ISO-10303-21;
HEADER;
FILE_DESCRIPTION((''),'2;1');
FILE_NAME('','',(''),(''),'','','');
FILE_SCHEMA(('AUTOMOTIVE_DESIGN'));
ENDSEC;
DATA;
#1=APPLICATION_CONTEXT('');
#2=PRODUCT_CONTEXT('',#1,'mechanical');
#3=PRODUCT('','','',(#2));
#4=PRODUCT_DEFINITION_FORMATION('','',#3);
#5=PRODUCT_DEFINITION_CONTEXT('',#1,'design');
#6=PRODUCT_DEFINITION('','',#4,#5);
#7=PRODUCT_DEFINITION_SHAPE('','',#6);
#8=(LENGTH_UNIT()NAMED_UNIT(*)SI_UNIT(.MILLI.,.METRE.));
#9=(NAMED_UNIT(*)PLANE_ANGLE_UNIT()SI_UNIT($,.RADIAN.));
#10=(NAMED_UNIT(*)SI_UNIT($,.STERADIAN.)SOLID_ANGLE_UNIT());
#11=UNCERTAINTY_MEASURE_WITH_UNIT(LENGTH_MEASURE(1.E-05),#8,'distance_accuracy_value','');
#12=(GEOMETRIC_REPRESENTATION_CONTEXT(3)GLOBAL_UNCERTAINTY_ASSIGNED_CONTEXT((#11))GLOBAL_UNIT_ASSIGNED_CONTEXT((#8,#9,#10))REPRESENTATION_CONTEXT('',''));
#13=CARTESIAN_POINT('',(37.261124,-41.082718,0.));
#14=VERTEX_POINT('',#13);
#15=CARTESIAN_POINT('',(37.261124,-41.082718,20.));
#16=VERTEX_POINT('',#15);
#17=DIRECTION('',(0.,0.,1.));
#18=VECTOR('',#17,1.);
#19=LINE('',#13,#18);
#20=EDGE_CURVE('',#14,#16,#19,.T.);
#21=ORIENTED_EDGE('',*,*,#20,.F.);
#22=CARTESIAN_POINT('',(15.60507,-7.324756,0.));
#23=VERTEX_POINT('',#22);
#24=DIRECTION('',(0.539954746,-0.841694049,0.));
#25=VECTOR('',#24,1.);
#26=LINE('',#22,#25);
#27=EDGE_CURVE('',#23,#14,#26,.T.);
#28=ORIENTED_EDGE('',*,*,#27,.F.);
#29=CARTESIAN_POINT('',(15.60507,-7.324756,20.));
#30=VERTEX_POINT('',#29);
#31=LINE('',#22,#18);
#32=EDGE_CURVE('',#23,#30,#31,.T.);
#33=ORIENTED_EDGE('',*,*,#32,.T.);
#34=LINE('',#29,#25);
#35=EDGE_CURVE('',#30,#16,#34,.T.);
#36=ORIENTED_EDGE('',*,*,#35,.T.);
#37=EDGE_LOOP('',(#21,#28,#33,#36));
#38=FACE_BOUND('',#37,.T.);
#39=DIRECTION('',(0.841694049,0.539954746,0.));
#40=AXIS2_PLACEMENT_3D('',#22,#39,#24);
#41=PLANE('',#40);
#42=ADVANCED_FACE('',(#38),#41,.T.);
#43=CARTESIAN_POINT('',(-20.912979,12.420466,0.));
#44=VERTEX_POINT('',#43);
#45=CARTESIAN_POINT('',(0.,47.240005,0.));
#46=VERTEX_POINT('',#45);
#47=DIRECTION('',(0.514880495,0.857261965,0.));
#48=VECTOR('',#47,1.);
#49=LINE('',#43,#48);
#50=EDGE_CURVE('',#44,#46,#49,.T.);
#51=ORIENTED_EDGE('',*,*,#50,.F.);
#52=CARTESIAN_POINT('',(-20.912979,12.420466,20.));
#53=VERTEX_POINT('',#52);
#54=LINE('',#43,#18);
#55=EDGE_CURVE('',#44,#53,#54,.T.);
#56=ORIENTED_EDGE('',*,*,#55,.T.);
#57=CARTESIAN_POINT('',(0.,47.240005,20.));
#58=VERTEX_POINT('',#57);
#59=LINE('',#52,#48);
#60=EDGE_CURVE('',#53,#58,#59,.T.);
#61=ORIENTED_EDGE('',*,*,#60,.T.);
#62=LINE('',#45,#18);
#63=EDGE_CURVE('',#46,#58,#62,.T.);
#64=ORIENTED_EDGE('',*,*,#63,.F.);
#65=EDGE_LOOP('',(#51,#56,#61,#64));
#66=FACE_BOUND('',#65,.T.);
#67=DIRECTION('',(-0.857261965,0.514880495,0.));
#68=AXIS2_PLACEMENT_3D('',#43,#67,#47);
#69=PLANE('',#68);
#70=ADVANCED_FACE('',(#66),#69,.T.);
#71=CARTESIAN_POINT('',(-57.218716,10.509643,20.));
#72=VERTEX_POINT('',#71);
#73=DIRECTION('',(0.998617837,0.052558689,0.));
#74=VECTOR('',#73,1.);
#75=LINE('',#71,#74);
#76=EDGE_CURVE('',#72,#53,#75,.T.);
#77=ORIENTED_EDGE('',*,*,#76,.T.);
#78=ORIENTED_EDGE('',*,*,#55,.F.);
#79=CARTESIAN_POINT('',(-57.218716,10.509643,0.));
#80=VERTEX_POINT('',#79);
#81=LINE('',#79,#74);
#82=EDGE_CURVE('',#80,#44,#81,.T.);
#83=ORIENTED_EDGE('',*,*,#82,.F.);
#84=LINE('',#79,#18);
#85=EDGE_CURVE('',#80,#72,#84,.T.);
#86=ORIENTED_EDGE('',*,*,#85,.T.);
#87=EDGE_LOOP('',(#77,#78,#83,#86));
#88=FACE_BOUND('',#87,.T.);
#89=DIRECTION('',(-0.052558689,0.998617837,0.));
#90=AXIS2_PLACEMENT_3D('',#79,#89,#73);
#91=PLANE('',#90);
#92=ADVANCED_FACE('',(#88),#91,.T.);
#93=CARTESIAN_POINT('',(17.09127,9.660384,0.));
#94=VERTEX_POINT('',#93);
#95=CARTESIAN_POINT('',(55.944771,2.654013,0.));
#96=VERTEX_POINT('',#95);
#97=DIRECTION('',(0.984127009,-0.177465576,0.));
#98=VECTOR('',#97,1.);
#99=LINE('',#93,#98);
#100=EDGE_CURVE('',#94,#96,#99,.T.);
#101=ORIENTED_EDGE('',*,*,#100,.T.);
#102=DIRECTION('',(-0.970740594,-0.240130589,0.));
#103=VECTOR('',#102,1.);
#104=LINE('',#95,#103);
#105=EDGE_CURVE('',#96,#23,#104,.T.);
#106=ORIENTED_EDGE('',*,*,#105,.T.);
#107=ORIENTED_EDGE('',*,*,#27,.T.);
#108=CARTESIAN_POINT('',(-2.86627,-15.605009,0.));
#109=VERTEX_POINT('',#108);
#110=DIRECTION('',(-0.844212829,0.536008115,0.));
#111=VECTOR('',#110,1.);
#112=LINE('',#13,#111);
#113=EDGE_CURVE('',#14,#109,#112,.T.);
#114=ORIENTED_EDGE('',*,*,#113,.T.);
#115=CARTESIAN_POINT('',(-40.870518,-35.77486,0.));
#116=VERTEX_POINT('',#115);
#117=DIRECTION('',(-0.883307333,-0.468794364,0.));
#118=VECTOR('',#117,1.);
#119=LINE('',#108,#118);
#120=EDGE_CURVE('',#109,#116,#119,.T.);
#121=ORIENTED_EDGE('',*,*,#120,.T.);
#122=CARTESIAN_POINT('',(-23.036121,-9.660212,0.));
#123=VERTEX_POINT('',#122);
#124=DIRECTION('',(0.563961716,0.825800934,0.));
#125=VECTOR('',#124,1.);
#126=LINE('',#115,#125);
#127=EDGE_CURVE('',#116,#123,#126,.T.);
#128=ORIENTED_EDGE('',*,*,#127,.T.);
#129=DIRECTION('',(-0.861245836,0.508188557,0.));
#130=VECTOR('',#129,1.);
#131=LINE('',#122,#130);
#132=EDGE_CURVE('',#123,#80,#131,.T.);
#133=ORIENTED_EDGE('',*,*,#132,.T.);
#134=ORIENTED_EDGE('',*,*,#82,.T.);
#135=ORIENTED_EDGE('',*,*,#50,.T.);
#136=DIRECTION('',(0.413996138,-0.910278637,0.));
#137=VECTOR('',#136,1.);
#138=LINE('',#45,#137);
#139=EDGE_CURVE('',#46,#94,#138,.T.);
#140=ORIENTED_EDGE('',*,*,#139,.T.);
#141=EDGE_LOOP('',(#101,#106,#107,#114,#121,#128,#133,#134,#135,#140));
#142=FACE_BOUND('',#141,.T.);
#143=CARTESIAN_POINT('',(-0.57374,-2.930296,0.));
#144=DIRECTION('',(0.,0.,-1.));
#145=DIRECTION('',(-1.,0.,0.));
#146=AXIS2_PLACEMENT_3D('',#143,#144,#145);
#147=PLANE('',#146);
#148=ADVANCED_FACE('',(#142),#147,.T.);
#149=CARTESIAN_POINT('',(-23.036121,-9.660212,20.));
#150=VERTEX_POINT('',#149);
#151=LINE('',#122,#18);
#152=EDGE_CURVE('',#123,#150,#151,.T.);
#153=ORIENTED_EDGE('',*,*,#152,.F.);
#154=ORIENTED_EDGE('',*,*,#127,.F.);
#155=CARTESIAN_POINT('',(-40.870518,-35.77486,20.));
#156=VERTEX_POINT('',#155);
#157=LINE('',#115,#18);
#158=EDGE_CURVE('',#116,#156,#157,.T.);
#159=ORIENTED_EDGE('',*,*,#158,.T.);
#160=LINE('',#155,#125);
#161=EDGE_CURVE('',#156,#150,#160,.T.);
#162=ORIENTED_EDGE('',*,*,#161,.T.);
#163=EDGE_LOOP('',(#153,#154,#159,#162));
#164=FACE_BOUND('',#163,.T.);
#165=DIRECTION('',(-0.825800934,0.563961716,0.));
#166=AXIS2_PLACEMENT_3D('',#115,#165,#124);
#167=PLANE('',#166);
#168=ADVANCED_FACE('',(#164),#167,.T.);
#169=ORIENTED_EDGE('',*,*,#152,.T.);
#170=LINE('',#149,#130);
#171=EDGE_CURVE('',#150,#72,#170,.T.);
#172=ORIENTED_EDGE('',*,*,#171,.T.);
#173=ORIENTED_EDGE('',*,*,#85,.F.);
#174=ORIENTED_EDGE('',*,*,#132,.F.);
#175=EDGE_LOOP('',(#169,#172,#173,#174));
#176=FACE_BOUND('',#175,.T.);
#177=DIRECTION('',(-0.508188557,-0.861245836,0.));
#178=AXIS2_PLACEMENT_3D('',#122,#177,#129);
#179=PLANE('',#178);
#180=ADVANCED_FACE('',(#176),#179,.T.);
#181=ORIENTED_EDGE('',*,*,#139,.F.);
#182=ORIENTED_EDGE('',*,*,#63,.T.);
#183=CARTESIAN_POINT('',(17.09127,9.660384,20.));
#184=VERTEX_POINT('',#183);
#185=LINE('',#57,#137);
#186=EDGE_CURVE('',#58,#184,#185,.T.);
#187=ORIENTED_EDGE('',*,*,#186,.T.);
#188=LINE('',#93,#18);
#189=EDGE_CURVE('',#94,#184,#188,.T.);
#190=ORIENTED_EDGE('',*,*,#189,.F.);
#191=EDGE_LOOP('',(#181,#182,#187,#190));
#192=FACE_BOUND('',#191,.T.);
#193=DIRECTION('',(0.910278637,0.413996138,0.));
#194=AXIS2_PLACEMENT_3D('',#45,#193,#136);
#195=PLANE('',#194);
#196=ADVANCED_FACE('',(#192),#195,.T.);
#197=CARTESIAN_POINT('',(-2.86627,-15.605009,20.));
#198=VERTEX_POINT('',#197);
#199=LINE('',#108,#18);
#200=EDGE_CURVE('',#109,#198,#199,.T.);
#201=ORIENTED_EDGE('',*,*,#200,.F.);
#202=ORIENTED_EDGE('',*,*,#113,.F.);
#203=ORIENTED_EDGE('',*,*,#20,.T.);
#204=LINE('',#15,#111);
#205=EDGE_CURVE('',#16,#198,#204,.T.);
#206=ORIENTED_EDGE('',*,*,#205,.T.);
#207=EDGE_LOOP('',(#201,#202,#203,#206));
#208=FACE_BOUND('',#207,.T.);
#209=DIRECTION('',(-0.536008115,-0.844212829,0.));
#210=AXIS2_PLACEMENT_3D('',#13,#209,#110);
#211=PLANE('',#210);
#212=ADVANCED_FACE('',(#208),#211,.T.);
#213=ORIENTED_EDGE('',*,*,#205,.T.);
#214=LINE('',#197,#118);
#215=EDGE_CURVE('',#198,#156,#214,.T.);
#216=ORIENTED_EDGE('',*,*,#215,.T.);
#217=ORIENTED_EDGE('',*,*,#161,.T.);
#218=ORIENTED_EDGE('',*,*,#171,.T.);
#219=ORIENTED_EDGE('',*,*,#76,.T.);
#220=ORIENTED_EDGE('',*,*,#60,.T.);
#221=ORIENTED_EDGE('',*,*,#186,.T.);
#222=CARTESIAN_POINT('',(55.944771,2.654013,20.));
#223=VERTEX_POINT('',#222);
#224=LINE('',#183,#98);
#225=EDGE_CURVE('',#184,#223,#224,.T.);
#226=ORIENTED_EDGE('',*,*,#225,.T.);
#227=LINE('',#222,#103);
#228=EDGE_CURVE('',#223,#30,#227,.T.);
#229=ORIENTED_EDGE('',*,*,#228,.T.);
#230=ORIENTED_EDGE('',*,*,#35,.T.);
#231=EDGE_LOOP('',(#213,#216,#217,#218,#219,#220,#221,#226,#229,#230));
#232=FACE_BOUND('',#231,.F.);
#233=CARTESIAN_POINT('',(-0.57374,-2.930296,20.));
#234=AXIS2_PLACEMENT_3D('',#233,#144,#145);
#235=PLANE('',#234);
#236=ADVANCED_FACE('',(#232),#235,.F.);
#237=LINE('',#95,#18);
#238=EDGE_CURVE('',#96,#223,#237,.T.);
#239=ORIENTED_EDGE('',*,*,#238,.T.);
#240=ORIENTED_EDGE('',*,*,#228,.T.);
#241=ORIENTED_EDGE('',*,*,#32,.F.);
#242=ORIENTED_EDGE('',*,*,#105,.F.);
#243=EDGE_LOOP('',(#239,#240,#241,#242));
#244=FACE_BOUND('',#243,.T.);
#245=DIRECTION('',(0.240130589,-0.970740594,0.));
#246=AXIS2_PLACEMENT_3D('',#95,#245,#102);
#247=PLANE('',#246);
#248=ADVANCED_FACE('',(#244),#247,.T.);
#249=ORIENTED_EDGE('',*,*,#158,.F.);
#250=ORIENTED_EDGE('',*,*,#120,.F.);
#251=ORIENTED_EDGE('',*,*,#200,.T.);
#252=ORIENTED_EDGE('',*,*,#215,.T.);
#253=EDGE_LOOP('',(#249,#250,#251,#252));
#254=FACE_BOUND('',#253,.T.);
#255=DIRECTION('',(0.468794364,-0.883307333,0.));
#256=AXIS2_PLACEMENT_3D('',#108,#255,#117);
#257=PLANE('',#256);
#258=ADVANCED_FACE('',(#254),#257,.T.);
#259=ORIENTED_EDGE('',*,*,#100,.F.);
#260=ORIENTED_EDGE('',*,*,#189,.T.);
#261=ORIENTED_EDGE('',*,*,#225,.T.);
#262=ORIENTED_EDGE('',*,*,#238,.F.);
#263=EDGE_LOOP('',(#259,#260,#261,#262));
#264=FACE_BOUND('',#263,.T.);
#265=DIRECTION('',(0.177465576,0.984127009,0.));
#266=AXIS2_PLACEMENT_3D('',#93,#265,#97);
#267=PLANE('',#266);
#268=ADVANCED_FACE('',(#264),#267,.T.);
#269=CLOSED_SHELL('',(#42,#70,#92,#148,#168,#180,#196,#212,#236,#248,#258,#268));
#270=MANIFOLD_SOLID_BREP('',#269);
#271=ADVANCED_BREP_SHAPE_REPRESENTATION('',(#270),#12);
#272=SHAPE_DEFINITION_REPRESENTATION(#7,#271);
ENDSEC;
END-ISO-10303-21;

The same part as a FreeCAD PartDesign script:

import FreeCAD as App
import Part
import Sketcher

V = App.Vector
Q = App.Units.Quantity

doc = App.newDocument("Part")
body = doc.addObject("PartDesign::Body", "Body")

# Sketch on XY plane
sketch1 = doc.addObject("Sketcher::SketchObject", "Sketch")
body.addObject(sketch1)
sketch1.AttachmentSupport = (doc.XY_Plane, [""])
sketch1.MapMode = "FlatFace"
sketch1.addGeometry([
    Part.LineSegment(V(17, 10, 0), V(0, 47, 0)),  # 0
    Part.LineSegment(V(0, 47, 0), V(-21, 12, 0)),  # 1
    Part.LineSegment(V(-21, 12, 0), V(-57, 11, 0)),  # 2
    Part.LineSegment(V(-57, 11, 0), V(-23, -10, 0)),  # 3
    Part.LineSegment(V(-23, -10, 0), V(-41, -36, 0)),  # 4
    Part.LineSegment(V(-41, -36, 0), V(-3, -16, 0)),  # 5
    Part.LineSegment(V(-3, -16, 0), V(37, -41, 0)),  # 6
    Part.LineSegment(V(37, -41, 0), V(16, -7, 0)),  # 7
    Part.LineSegment(V(16, -7, 0), V(56, 3, 0)),  # 8
    Part.LineSegment(V(56, 3, 0), V(17, 10, 0)),  # 9
], False)
sketch1.addConstraint([
    Sketcher.Constraint("Coincident", 0, 2, 1, 1),
    Sketcher.Constraint("Coincident", 1, 2, 2, 1),
    Sketcher.Constraint("Coincident", 2, 2, 3, 1),
    Sketcher.Constraint("Coincident", 3, 2, 4, 1),
    Sketcher.Constraint("Coincident", 4, 2, 5, 1),
    Sketcher.Constraint("Coincident", 5, 2, 6, 1),
    Sketcher.Constraint("Coincident", 6, 2, 7, 1),
    Sketcher.Constraint("Coincident", 7, 2, 8, 1),
    Sketcher.Constraint("Coincident", 8, 2, 9, 1),
    Sketcher.Constraint("Coincident", 9, 2, 0, 1),
    Sketcher.Constraint("PointOnObject", 0, 2, -2),
    Sketcher.Constraint("DistanceX", 2, 2, 4, 2, Q("16.348198 mm")),
    Sketcher.Constraint("DistanceX", 7, 2, 8, 2, Q("40.339701 mm")),
    Sketcher.Constraint("DistanceX", 7, 2, 9, 2, Q("1.4862 mm")),
    Sketcher.Constraint("Distance", 1, Q("40.617151 mm")),
    Sketcher.Constraint("Distance", 6, Q("47.53232 mm")),
    Sketcher.Constraint("Distance", 9, Q("39.480169 mm")),
    Sketcher.Constraint("DistanceX", 1, 2, -1, 1, Q("20.912979 mm")),
    Sketcher.Constraint("DistanceX", 3, 2, -1, 1, Q("23.036121 mm")),
    Sketcher.Constraint("DistanceY", 4, 2, -1, 1, Q("35.77486 mm")),
    Sketcher.Constraint("DistanceX", 5, 2, -1, 1, Q("2.86627 mm")),
    Sketcher.Constraint("DistanceY", 5, 2, -1, 1, Q("15.605009 mm")),
    Sketcher.Constraint("DistanceX", -1, 1, 7, 2, Q("15.60507 mm")),
    Sketcher.Constraint("DistanceX", 4, 2, 1, 2, Q("19.957539 mm")),
    Sketcher.Constraint("DistanceY", 5, 2, 2, 2, Q("26.114652 mm")),
    Sketcher.Constraint("DistanceY", 6, 2, 5, 2, Q("25.477709 mm")),
    Sketcher.Constraint("DistanceY", 7, 2, 1, 2, Q("19.745222 mm")),
    Sketcher.Constraint("DistanceY", 7, 2, 8, 2, Q("9.978769 mm")),
    Sketcher.Constraint("DistanceY", 6, 2, 8, 2, Q("43.736731 mm")),
    Sketcher.Constraint("Distance", 3, Q("39.689707 mm")),
])
pad1 = doc.addObject("PartDesign::Pad", "Pad")
body.addObject(pad1)
pad1.Profile = sketch1
pad1.Length = 20

doc.recompute()
